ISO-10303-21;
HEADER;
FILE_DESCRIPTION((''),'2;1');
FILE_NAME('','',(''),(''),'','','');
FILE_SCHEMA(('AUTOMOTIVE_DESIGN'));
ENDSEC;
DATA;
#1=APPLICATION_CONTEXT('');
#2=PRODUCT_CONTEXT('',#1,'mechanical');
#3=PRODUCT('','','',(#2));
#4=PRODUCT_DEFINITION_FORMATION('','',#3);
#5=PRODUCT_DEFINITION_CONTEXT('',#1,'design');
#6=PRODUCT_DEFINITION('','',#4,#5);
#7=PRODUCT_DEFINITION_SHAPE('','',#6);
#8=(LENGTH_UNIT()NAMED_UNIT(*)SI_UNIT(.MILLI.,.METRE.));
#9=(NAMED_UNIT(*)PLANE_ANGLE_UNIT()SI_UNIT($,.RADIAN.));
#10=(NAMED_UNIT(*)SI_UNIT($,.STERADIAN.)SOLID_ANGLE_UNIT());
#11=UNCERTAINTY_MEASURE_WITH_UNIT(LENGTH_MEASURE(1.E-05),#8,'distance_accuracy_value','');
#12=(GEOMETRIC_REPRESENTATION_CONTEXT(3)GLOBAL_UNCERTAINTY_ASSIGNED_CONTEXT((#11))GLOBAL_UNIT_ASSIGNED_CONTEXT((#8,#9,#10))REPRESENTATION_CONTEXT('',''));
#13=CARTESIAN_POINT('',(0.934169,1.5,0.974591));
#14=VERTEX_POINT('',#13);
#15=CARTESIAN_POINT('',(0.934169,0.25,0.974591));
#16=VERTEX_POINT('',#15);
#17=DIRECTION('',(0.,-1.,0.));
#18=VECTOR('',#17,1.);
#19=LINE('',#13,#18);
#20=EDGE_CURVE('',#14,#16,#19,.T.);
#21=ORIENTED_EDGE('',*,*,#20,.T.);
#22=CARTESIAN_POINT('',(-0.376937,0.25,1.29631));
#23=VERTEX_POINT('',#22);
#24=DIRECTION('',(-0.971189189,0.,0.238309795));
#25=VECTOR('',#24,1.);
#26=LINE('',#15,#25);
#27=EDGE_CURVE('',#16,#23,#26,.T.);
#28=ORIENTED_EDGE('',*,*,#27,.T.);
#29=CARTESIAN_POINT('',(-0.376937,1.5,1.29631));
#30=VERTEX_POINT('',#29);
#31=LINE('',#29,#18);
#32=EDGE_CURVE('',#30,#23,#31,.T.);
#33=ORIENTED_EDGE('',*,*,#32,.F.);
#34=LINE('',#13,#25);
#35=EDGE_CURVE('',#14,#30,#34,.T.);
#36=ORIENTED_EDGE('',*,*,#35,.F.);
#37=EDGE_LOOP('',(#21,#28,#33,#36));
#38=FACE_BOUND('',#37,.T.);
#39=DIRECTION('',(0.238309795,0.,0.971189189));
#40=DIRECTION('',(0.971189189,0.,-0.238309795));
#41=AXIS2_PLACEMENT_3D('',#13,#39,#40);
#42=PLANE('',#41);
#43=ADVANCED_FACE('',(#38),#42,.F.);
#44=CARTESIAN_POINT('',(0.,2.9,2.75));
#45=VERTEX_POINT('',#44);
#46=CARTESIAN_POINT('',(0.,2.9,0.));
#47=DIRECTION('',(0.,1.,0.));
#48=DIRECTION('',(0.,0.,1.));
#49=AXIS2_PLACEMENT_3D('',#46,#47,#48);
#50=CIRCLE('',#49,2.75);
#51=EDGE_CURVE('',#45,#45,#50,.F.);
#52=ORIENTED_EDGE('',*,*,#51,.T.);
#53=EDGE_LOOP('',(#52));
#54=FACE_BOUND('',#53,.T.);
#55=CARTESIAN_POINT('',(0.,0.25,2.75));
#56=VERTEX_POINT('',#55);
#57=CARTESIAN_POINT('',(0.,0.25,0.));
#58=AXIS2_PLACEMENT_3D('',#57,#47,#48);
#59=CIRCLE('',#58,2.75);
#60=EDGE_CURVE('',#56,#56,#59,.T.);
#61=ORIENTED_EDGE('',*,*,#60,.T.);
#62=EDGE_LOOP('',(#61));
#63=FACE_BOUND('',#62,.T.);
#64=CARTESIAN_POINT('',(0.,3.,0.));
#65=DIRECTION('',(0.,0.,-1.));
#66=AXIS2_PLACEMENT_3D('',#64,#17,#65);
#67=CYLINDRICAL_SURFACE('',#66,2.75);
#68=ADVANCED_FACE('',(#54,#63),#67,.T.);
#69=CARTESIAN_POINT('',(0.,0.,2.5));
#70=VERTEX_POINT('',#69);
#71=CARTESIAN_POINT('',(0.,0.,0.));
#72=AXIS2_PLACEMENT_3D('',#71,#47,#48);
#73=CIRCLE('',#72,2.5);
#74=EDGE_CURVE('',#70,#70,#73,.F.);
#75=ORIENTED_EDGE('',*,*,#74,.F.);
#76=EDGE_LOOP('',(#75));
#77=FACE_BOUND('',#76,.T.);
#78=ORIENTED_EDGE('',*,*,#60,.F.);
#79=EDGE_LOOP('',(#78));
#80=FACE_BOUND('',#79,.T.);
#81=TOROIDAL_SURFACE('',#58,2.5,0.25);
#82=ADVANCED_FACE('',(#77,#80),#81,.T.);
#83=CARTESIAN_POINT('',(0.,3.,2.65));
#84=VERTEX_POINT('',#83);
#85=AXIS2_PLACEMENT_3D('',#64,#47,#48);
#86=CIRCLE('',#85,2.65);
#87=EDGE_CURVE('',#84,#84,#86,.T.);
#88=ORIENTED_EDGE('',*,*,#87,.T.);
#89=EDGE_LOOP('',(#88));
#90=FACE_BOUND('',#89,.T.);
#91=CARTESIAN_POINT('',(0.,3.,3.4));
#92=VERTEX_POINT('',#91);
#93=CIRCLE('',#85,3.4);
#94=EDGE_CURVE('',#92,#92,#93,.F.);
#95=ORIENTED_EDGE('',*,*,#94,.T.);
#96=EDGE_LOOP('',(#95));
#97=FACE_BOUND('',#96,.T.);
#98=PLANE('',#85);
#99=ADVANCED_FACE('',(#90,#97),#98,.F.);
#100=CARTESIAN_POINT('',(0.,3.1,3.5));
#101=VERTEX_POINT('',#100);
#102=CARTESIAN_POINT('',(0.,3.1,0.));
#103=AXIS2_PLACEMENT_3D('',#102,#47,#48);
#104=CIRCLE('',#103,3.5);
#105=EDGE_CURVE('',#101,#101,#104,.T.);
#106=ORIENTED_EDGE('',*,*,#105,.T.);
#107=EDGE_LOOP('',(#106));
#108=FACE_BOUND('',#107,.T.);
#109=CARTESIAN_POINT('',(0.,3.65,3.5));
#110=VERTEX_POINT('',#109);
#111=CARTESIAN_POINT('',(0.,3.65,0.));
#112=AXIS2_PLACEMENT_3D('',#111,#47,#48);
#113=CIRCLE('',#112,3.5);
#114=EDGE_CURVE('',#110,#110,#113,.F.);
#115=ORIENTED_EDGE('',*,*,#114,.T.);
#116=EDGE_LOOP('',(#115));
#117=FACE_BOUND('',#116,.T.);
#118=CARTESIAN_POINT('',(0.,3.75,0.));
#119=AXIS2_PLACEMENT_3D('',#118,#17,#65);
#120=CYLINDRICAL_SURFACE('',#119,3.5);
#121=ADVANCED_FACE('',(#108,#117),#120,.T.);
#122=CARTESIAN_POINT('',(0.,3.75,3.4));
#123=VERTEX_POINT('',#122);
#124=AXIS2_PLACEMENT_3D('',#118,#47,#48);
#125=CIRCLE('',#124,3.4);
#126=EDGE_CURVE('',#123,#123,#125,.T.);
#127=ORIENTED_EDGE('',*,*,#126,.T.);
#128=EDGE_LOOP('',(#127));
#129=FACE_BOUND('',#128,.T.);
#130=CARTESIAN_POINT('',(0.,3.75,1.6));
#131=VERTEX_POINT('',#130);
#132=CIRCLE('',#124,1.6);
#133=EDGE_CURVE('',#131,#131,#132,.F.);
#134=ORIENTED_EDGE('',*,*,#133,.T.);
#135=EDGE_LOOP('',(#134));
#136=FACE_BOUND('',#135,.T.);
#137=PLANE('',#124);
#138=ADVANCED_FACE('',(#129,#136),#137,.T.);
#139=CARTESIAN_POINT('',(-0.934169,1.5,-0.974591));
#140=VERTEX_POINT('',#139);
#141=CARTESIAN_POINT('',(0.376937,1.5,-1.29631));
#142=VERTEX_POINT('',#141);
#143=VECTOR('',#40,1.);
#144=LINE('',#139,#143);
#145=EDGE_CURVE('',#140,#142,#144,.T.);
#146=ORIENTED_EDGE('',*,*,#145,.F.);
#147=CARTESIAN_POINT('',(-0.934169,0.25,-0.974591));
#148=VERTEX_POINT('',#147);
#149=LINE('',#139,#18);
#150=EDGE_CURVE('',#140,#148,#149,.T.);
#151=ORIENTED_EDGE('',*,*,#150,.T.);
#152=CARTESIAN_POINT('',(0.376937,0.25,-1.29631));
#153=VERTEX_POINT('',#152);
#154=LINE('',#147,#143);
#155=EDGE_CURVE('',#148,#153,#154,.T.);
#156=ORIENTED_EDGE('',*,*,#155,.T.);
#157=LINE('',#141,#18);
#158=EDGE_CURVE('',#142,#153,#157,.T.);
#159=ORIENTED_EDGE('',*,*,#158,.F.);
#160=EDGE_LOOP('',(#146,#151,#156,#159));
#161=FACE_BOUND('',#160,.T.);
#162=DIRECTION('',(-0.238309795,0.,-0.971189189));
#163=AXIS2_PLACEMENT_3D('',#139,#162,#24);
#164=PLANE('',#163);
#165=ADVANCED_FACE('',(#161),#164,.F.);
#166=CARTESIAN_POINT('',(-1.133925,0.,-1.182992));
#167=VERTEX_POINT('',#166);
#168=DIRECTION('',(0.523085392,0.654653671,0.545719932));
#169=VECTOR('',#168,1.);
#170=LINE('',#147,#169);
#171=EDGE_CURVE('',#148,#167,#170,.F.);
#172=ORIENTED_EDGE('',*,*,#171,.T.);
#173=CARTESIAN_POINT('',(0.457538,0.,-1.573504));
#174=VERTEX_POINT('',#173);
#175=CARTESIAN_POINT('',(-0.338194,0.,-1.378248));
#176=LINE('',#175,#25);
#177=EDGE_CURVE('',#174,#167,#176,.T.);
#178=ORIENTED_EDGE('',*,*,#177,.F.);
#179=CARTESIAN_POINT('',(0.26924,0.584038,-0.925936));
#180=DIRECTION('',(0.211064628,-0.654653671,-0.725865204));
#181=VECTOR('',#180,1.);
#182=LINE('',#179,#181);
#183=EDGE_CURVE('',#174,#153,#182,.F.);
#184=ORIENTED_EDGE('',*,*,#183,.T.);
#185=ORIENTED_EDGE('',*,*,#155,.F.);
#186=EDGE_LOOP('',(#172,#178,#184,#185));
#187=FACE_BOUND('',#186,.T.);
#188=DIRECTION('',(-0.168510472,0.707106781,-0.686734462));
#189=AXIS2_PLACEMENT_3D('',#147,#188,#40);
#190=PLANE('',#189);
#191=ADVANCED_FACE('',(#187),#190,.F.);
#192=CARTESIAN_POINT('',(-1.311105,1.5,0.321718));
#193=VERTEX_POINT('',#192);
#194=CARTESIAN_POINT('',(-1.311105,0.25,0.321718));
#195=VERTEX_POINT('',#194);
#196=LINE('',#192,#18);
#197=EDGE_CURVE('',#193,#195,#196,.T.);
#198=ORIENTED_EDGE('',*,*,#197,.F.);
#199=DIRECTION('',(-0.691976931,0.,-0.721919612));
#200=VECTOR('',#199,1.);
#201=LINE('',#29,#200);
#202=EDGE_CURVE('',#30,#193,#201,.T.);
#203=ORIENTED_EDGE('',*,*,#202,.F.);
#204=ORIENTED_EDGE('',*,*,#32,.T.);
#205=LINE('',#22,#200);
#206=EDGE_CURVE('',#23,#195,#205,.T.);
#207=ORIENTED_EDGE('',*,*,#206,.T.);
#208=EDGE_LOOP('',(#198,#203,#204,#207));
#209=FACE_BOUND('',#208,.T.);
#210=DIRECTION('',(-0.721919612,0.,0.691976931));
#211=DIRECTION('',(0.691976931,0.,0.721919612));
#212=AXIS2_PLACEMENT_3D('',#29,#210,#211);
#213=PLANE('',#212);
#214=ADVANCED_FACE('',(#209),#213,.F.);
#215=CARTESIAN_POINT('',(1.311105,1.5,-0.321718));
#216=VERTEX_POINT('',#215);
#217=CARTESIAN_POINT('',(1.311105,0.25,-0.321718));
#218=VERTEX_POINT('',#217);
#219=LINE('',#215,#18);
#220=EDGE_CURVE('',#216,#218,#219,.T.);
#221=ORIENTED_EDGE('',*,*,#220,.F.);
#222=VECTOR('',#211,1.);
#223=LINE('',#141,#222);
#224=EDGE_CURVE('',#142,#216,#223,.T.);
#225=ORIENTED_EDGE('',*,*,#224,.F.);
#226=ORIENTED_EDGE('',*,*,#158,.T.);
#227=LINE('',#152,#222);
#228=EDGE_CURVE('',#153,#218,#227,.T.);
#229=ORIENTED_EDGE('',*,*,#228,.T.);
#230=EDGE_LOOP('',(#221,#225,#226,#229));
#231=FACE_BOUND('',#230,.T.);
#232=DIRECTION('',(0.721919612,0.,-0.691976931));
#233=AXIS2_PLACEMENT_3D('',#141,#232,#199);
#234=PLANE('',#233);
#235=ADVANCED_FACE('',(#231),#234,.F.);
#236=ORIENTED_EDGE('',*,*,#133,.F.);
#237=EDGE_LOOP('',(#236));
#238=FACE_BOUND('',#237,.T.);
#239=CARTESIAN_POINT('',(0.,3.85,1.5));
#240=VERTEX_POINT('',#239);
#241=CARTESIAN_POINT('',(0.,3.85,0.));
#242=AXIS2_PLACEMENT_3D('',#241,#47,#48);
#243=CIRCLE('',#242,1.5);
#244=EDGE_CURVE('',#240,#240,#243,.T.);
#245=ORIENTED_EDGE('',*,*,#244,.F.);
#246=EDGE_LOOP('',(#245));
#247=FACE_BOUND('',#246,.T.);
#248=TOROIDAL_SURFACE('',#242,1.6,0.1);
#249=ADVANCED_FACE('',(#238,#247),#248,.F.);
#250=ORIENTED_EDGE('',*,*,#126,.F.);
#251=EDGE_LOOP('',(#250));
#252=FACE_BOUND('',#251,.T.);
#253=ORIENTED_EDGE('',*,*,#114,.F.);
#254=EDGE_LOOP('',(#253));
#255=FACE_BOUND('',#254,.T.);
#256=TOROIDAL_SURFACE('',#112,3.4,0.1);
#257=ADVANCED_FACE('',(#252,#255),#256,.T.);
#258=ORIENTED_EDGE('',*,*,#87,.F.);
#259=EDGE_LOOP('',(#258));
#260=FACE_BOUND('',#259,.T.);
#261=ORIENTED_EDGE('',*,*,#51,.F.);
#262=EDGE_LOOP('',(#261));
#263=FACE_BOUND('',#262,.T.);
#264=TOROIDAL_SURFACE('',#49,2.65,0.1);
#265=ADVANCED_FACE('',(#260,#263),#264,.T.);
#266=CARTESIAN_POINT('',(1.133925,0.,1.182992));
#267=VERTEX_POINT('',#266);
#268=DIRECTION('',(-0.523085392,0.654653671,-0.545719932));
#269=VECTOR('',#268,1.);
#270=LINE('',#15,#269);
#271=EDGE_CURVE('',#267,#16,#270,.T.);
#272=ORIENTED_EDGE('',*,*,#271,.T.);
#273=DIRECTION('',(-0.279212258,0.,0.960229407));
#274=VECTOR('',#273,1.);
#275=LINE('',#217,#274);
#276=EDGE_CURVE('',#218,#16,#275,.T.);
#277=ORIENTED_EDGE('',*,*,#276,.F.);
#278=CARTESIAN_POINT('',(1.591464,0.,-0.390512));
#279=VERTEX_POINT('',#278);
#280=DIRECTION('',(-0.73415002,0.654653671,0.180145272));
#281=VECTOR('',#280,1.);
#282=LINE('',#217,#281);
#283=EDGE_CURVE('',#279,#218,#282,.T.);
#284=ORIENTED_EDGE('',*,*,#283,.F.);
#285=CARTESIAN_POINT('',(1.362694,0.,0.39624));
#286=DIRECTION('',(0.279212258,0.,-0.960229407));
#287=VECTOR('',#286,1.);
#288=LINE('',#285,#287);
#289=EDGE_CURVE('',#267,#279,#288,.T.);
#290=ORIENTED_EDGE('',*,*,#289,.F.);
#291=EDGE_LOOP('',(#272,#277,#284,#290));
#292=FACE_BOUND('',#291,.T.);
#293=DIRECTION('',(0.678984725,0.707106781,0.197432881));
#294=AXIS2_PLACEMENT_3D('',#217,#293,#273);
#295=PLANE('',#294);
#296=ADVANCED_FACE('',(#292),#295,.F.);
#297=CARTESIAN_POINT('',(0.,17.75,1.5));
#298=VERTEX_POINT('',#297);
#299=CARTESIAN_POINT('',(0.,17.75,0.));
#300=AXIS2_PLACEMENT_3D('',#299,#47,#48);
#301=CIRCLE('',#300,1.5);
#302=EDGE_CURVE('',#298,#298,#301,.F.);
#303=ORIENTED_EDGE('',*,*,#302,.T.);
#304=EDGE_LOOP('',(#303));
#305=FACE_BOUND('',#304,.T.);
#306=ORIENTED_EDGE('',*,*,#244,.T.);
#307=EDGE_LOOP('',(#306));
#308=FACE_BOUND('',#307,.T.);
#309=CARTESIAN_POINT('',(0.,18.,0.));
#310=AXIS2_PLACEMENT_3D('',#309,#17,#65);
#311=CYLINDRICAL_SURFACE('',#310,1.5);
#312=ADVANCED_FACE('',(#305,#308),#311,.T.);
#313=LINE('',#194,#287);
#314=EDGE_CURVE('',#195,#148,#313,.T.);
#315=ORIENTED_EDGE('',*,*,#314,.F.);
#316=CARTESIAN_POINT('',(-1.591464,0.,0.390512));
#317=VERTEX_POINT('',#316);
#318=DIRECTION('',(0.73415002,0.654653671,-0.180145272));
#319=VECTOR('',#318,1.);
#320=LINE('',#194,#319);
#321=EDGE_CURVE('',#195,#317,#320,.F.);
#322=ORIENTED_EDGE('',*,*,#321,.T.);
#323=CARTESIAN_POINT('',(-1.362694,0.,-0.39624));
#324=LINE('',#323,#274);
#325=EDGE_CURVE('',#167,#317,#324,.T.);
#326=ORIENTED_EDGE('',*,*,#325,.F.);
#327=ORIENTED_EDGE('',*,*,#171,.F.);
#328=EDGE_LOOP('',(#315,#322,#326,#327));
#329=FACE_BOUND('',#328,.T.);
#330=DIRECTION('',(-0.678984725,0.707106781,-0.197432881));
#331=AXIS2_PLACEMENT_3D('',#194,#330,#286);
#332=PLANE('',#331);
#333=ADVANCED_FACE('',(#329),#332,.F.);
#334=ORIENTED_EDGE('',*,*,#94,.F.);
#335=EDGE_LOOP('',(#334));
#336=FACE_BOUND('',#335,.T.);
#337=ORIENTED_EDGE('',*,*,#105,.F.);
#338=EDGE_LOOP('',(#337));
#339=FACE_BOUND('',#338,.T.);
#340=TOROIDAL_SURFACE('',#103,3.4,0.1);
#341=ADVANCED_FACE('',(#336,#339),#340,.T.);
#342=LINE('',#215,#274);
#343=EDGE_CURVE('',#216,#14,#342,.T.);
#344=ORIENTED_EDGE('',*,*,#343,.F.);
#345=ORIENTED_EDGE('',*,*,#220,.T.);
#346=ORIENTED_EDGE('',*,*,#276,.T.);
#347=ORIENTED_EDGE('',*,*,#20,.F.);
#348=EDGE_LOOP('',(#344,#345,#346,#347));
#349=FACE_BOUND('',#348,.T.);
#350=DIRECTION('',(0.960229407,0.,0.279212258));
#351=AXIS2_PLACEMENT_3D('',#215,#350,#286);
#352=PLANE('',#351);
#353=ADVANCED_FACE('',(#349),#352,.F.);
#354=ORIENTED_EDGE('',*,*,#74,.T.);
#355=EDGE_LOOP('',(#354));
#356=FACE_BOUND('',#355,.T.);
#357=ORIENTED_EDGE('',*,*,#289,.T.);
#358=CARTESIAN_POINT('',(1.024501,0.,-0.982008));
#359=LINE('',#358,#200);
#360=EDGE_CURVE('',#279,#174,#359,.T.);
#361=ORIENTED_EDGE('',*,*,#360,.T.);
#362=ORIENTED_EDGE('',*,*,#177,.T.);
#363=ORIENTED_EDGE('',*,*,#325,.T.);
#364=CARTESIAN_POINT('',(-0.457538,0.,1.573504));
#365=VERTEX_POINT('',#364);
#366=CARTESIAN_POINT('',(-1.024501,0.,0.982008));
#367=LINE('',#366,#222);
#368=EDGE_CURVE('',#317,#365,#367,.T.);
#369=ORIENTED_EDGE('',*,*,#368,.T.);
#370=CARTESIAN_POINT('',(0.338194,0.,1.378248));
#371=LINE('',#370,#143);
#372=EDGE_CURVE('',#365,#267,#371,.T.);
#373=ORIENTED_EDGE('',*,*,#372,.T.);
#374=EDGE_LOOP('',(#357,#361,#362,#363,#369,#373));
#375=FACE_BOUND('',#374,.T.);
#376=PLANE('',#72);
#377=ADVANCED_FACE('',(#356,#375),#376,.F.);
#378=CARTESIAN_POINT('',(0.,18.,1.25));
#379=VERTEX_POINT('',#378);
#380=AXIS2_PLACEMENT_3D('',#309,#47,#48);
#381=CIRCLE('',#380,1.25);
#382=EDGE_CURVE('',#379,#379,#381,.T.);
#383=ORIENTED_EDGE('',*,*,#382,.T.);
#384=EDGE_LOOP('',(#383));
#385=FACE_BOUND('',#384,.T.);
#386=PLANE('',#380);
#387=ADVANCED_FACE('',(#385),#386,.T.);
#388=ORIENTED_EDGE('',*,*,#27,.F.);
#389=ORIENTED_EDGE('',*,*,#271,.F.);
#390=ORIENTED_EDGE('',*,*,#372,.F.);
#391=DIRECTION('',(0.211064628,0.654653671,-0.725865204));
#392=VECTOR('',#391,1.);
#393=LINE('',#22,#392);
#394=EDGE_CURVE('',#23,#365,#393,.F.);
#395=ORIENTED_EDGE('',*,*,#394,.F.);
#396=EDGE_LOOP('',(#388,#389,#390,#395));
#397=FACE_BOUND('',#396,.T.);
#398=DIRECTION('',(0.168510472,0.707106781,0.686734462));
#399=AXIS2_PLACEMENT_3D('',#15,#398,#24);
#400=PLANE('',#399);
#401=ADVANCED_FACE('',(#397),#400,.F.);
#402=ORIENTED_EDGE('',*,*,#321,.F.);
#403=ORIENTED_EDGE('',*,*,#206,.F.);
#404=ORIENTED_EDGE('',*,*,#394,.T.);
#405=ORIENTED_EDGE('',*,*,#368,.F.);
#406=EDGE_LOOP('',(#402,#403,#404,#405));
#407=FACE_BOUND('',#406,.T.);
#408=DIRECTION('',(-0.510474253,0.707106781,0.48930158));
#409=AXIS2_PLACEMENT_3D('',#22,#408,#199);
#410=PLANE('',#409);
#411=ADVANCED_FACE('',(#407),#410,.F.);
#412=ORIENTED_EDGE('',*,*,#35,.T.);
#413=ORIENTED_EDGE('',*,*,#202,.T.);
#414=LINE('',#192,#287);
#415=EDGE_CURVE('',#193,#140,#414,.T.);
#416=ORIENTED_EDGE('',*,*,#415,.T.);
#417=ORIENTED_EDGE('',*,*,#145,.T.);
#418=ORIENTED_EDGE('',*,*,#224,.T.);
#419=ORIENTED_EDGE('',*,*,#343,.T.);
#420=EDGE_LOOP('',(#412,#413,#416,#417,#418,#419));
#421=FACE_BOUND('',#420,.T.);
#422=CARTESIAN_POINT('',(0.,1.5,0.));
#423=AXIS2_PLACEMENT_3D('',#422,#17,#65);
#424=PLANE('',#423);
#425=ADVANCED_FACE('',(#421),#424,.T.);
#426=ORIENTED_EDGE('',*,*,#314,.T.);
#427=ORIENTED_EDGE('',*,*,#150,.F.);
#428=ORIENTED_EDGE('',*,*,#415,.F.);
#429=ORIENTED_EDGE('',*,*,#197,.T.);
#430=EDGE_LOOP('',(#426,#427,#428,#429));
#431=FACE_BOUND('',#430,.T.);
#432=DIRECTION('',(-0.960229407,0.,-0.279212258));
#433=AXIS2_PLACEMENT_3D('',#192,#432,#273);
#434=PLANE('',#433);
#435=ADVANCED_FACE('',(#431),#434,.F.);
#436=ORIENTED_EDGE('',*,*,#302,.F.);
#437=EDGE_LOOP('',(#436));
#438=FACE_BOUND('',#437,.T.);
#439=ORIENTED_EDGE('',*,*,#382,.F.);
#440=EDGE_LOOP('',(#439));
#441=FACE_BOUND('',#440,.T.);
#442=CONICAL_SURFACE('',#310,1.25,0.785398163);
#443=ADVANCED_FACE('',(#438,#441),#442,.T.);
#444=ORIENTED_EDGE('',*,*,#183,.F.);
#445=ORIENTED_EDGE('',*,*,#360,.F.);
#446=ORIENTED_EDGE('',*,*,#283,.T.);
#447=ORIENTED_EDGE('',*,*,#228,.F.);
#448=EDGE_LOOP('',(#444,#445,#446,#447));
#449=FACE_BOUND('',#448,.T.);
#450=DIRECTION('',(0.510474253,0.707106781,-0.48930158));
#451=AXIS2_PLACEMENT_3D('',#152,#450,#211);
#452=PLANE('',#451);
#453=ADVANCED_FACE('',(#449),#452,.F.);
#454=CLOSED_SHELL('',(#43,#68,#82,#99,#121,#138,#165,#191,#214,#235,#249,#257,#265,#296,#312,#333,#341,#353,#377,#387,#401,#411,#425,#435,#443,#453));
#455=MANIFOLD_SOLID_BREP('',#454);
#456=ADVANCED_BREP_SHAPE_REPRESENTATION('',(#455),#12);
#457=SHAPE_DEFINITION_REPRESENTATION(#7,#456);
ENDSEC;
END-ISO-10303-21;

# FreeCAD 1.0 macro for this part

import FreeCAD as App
import Part
import Sketcher
Q = App.Units.Quantity


def edges_at(feature, points):
    """Names of the edges that pass closest to the given points."""
    edges = feature.Shape.Edges
    near = lambda p: min(range(len(edges)), key=lambda i: edges[i].distToShape(Part.Vertex(*p))[0])
    return sorted({f"Edge{near(p) + 1}" for p in points})


def add_polygon(sketch, points):
    """Adds a closed chain of lines whose ends are joined by coincident constraints."""
    first, n = sketch.GeometryCount, len(points)
    for a, b in zip(points, points[1:] + points[:1]):
        sketch.addGeometry(Part.LineSegment(App.Vector(*a, 0), App.Vector(*b, 0)), False)
    for i in range(n):
        sketch.addConstraint(Sketcher.Constraint("Coincident", first + i, 2, first + (i + 1) % n, 1))

doc = App.newDocument("Part")
params = doc.addObject("Spreadsheet::Sheet", "Params")
for row, (alias, value) in enumerate([
    ("sketch1_diameter", "5.5 mm"),
    ("pad1_length", "3 mm"),
    ("sketch2_diameter", "3 mm"),
    ("pad2_length", "15 mm"),
    ("sketch3_length", "1.35 mm"),
    ("pocket1_length", "1.5 mm"),
    ("chamfer_size", "0.25 mm"),
    ("fillet_radius", "0.25 mm"),
    ("chamfer2_size", "0.25 mm"),
    ("fillet2_radius", "0.1 mm"),
    ("sketch4_diameter", "7 mm"),
    ("sketch4_diameter2", "3 mm"),
    ("pad3_length", "0.75 mm"),
    ("fillet3_radius", "0.1 mm"),
], start=1):
    params.set(f"A{row}", alias)
    params.set(f"B{row}", "=" + value)
    params.setAlias(f"B{row}", alias)

body = doc.addObject("PartDesign::Body", "Body")

sketch1 = body.newObject("Sketcher::SketchObject", "Sketch")
sketch1.AttachmentSupport = (doc.getObject("XZ_Plane"), [""])
sketch1.MapMode = "FlatFace"
sketch1.addGeometry(Part.Circle(App.Vector(0, 0, 0), App.Vector(0, 0, 1), 2.8), False)
sketch1.addConstraint([
    Sketcher.Constraint("Coincident", 0, 3, -1, 1),
    Sketcher.Constraint("Diameter", 0, Q("5.5 mm")),
])
sketch1.setExpression("Constraints[1]", "Params.sketch1_diameter")
pad1 = body.newObject("PartDesign::Pad", "Pad")
pad1.Profile = sketch1
pad1.setExpression("Length", "Params.pad1_length")
pad1.Reversed = True

sketch2 = body.newObject("Sketcher::SketchObject", "Sketch001")
sketch2.AttachmentSupport = (doc.getObject("XZ_Plane"), [""])
sketch2.MapMode = "FlatFace"
sketch2.AttachmentOffset = App.Placement(App.Vector(0, 0, -3), App.Rotation())
sketch2.addGeometry(Part.Circle(App.Vector(0, 0, 0), App.Vector(0, 0, 1), 1.5), False)
sketch2.addConstraint([
    Sketcher.Constraint("Coincident", 0, 3, -1, 1),
    Sketcher.Constraint("Diameter", 0, Q("3 mm")),
])
sketch2.setExpression("Constraints[1]", "Params.sketch2_diameter")
pad2 = body.newObject("PartDesign::Pad", "Pad001")
pad2.Profile = sketch2
pad2.setExpression("Length", "Params.pad2_length")
pad2.Reversed = True

sketch3 = body.newObject("Sketcher::SketchObject", "Sketch002")
sketch3.AttachmentSupport = (doc.getObject("XZ_Plane"), [""])
sketch3.MapMode = "FlatFace"
add_polygon(sketch3, [(0.9, 1), (-0.4, 1.3), (-1.3, 0.3), (-0.9, -1), (0.4, -1.3), (1.3, -0.3)])
sketch3.addConstraint([
    Sketcher.Constraint("Symmetric", 0, 2, 3, 2, -1, 1),
    Sketcher.Constraint("Symmetric", 1, 2, 4, 2, -1, 1),
    Sketcher.Constraint("Symmetric", 2, 2, 5, 2, -1, 1),
    Sketcher.Constraint("Equal", 0, 1),
    Sketcher.Constraint("Equal", 1, 2),
    Sketcher.Constraint("Distance", 0, Q("1.35 mm")),
    Sketcher.Constraint("DistanceY", 2, 2, 0, 2, Q("2.270901 mm")),
    Sketcher.Constraint("DistanceY", -1, 1, 0, 2, Q("1.29631 mm")),
    Sketcher.Constraint("DistanceY", -1, 1, 1, 2, Q("0.321718 mm")),
])
sketch3.setExpression("Constraints[11]", "Params.sketch3_length")
pocket1 = body.newObject("PartDesign::Pocket", "Pocket")
pocket1.Profile = sketch3
pocket1.setExpression("Length", "Params.pocket1_length")
doc.recompute()

chamfer = body.newObject("PartDesign::Chamfer", "Chamfer")
chamfer.Base = (pocket1, edges_at(pocket1, [
    (1.123, 0, 0.326),
    (0.279, 0, 1.135),
    (-0.844, 0, 0.809),
    (-1.123, 0, -0.326),
    (-0.279, 0, -1.135),
    (0.844, 0, -0.809),
]))
chamfer.setExpression("Size", "Params.chamfer_size")
doc.recompute()

fillet = body.newObject("PartDesign::Fillet", "Fillet")
fillet.Base = (chamfer, edges_at(chamfer, [(0, 0, -2.75)]))
fillet.setExpression("Radius", "Params.fillet_radius")
doc.recompute()

chamfer2 = body.newObject("PartDesign::Chamfer", "Chamfer001")
chamfer2.Base = (fillet, edges_at(fillet, [(0, 18, -1.5)]))
chamfer2.setExpression("Size", "Params.chamfer2_size")
doc.recompute()

fillet2 = body.newObject("PartDesign::Fillet", "Fillet001")
fillet2.Base = (chamfer2, edges_at(chamfer2, [(0, 3, -2.75)]))
fillet2.setExpression("Radius", "Params.fillet2_radius")

sketch4 = body.newObject("Sketcher::SketchObject", "Sketch003")
sketch4.AttachmentSupport = (doc.getObject("XZ_Plane"), [""])
sketch4.MapMode = "FlatFace"
sketch4.AttachmentOffset = App.Placement(App.Vector(0, 0, -3), App.Rotation())
sketch4.addGeometry([
    Part.Circle(App.Vector(0, 0, 0), App.Vector(0, 0, 1), 3.5),
    Part.Circle(App.Vector(0, 0, 0), App.Vector(0, 0, 1), 1.5),
], False)
sketch4.addConstraint([
    Sketcher.Constraint("Coincident", 0, 3, -1, 1),
    Sketcher.Constraint("Coincident", 1, 3, -1, 1),
    Sketcher.Constraint("Diameter", 0, Q("7 mm")),
    Sketcher.Constraint("Diameter", 1, Q("3 mm")),
])
sketch4.setExpression("Constraints[2]", "Params.sketch4_diameter")
sketch4.setExpression("Constraints[3]", "Params.sketch4_diameter2")
pad3 = body.newObject("PartDesign::Pad", "Pad002")
pad3.Profile = sketch4
pad3.setExpression("Length", "Params.pad3_length")
pad3.Reversed = True
doc.recompute()

fillet3 = body.newObject("PartDesign::Fillet", "Fillet002")
fillet3.Base = (pad3, edges_at(pad3, [(0, 3.75, -3.5), (0, 3, -3.5), (0, 3.75, -1.5)]))
fillet3.setExpression("Radius", "Params.fillet3_radius")

doc.recompute()
